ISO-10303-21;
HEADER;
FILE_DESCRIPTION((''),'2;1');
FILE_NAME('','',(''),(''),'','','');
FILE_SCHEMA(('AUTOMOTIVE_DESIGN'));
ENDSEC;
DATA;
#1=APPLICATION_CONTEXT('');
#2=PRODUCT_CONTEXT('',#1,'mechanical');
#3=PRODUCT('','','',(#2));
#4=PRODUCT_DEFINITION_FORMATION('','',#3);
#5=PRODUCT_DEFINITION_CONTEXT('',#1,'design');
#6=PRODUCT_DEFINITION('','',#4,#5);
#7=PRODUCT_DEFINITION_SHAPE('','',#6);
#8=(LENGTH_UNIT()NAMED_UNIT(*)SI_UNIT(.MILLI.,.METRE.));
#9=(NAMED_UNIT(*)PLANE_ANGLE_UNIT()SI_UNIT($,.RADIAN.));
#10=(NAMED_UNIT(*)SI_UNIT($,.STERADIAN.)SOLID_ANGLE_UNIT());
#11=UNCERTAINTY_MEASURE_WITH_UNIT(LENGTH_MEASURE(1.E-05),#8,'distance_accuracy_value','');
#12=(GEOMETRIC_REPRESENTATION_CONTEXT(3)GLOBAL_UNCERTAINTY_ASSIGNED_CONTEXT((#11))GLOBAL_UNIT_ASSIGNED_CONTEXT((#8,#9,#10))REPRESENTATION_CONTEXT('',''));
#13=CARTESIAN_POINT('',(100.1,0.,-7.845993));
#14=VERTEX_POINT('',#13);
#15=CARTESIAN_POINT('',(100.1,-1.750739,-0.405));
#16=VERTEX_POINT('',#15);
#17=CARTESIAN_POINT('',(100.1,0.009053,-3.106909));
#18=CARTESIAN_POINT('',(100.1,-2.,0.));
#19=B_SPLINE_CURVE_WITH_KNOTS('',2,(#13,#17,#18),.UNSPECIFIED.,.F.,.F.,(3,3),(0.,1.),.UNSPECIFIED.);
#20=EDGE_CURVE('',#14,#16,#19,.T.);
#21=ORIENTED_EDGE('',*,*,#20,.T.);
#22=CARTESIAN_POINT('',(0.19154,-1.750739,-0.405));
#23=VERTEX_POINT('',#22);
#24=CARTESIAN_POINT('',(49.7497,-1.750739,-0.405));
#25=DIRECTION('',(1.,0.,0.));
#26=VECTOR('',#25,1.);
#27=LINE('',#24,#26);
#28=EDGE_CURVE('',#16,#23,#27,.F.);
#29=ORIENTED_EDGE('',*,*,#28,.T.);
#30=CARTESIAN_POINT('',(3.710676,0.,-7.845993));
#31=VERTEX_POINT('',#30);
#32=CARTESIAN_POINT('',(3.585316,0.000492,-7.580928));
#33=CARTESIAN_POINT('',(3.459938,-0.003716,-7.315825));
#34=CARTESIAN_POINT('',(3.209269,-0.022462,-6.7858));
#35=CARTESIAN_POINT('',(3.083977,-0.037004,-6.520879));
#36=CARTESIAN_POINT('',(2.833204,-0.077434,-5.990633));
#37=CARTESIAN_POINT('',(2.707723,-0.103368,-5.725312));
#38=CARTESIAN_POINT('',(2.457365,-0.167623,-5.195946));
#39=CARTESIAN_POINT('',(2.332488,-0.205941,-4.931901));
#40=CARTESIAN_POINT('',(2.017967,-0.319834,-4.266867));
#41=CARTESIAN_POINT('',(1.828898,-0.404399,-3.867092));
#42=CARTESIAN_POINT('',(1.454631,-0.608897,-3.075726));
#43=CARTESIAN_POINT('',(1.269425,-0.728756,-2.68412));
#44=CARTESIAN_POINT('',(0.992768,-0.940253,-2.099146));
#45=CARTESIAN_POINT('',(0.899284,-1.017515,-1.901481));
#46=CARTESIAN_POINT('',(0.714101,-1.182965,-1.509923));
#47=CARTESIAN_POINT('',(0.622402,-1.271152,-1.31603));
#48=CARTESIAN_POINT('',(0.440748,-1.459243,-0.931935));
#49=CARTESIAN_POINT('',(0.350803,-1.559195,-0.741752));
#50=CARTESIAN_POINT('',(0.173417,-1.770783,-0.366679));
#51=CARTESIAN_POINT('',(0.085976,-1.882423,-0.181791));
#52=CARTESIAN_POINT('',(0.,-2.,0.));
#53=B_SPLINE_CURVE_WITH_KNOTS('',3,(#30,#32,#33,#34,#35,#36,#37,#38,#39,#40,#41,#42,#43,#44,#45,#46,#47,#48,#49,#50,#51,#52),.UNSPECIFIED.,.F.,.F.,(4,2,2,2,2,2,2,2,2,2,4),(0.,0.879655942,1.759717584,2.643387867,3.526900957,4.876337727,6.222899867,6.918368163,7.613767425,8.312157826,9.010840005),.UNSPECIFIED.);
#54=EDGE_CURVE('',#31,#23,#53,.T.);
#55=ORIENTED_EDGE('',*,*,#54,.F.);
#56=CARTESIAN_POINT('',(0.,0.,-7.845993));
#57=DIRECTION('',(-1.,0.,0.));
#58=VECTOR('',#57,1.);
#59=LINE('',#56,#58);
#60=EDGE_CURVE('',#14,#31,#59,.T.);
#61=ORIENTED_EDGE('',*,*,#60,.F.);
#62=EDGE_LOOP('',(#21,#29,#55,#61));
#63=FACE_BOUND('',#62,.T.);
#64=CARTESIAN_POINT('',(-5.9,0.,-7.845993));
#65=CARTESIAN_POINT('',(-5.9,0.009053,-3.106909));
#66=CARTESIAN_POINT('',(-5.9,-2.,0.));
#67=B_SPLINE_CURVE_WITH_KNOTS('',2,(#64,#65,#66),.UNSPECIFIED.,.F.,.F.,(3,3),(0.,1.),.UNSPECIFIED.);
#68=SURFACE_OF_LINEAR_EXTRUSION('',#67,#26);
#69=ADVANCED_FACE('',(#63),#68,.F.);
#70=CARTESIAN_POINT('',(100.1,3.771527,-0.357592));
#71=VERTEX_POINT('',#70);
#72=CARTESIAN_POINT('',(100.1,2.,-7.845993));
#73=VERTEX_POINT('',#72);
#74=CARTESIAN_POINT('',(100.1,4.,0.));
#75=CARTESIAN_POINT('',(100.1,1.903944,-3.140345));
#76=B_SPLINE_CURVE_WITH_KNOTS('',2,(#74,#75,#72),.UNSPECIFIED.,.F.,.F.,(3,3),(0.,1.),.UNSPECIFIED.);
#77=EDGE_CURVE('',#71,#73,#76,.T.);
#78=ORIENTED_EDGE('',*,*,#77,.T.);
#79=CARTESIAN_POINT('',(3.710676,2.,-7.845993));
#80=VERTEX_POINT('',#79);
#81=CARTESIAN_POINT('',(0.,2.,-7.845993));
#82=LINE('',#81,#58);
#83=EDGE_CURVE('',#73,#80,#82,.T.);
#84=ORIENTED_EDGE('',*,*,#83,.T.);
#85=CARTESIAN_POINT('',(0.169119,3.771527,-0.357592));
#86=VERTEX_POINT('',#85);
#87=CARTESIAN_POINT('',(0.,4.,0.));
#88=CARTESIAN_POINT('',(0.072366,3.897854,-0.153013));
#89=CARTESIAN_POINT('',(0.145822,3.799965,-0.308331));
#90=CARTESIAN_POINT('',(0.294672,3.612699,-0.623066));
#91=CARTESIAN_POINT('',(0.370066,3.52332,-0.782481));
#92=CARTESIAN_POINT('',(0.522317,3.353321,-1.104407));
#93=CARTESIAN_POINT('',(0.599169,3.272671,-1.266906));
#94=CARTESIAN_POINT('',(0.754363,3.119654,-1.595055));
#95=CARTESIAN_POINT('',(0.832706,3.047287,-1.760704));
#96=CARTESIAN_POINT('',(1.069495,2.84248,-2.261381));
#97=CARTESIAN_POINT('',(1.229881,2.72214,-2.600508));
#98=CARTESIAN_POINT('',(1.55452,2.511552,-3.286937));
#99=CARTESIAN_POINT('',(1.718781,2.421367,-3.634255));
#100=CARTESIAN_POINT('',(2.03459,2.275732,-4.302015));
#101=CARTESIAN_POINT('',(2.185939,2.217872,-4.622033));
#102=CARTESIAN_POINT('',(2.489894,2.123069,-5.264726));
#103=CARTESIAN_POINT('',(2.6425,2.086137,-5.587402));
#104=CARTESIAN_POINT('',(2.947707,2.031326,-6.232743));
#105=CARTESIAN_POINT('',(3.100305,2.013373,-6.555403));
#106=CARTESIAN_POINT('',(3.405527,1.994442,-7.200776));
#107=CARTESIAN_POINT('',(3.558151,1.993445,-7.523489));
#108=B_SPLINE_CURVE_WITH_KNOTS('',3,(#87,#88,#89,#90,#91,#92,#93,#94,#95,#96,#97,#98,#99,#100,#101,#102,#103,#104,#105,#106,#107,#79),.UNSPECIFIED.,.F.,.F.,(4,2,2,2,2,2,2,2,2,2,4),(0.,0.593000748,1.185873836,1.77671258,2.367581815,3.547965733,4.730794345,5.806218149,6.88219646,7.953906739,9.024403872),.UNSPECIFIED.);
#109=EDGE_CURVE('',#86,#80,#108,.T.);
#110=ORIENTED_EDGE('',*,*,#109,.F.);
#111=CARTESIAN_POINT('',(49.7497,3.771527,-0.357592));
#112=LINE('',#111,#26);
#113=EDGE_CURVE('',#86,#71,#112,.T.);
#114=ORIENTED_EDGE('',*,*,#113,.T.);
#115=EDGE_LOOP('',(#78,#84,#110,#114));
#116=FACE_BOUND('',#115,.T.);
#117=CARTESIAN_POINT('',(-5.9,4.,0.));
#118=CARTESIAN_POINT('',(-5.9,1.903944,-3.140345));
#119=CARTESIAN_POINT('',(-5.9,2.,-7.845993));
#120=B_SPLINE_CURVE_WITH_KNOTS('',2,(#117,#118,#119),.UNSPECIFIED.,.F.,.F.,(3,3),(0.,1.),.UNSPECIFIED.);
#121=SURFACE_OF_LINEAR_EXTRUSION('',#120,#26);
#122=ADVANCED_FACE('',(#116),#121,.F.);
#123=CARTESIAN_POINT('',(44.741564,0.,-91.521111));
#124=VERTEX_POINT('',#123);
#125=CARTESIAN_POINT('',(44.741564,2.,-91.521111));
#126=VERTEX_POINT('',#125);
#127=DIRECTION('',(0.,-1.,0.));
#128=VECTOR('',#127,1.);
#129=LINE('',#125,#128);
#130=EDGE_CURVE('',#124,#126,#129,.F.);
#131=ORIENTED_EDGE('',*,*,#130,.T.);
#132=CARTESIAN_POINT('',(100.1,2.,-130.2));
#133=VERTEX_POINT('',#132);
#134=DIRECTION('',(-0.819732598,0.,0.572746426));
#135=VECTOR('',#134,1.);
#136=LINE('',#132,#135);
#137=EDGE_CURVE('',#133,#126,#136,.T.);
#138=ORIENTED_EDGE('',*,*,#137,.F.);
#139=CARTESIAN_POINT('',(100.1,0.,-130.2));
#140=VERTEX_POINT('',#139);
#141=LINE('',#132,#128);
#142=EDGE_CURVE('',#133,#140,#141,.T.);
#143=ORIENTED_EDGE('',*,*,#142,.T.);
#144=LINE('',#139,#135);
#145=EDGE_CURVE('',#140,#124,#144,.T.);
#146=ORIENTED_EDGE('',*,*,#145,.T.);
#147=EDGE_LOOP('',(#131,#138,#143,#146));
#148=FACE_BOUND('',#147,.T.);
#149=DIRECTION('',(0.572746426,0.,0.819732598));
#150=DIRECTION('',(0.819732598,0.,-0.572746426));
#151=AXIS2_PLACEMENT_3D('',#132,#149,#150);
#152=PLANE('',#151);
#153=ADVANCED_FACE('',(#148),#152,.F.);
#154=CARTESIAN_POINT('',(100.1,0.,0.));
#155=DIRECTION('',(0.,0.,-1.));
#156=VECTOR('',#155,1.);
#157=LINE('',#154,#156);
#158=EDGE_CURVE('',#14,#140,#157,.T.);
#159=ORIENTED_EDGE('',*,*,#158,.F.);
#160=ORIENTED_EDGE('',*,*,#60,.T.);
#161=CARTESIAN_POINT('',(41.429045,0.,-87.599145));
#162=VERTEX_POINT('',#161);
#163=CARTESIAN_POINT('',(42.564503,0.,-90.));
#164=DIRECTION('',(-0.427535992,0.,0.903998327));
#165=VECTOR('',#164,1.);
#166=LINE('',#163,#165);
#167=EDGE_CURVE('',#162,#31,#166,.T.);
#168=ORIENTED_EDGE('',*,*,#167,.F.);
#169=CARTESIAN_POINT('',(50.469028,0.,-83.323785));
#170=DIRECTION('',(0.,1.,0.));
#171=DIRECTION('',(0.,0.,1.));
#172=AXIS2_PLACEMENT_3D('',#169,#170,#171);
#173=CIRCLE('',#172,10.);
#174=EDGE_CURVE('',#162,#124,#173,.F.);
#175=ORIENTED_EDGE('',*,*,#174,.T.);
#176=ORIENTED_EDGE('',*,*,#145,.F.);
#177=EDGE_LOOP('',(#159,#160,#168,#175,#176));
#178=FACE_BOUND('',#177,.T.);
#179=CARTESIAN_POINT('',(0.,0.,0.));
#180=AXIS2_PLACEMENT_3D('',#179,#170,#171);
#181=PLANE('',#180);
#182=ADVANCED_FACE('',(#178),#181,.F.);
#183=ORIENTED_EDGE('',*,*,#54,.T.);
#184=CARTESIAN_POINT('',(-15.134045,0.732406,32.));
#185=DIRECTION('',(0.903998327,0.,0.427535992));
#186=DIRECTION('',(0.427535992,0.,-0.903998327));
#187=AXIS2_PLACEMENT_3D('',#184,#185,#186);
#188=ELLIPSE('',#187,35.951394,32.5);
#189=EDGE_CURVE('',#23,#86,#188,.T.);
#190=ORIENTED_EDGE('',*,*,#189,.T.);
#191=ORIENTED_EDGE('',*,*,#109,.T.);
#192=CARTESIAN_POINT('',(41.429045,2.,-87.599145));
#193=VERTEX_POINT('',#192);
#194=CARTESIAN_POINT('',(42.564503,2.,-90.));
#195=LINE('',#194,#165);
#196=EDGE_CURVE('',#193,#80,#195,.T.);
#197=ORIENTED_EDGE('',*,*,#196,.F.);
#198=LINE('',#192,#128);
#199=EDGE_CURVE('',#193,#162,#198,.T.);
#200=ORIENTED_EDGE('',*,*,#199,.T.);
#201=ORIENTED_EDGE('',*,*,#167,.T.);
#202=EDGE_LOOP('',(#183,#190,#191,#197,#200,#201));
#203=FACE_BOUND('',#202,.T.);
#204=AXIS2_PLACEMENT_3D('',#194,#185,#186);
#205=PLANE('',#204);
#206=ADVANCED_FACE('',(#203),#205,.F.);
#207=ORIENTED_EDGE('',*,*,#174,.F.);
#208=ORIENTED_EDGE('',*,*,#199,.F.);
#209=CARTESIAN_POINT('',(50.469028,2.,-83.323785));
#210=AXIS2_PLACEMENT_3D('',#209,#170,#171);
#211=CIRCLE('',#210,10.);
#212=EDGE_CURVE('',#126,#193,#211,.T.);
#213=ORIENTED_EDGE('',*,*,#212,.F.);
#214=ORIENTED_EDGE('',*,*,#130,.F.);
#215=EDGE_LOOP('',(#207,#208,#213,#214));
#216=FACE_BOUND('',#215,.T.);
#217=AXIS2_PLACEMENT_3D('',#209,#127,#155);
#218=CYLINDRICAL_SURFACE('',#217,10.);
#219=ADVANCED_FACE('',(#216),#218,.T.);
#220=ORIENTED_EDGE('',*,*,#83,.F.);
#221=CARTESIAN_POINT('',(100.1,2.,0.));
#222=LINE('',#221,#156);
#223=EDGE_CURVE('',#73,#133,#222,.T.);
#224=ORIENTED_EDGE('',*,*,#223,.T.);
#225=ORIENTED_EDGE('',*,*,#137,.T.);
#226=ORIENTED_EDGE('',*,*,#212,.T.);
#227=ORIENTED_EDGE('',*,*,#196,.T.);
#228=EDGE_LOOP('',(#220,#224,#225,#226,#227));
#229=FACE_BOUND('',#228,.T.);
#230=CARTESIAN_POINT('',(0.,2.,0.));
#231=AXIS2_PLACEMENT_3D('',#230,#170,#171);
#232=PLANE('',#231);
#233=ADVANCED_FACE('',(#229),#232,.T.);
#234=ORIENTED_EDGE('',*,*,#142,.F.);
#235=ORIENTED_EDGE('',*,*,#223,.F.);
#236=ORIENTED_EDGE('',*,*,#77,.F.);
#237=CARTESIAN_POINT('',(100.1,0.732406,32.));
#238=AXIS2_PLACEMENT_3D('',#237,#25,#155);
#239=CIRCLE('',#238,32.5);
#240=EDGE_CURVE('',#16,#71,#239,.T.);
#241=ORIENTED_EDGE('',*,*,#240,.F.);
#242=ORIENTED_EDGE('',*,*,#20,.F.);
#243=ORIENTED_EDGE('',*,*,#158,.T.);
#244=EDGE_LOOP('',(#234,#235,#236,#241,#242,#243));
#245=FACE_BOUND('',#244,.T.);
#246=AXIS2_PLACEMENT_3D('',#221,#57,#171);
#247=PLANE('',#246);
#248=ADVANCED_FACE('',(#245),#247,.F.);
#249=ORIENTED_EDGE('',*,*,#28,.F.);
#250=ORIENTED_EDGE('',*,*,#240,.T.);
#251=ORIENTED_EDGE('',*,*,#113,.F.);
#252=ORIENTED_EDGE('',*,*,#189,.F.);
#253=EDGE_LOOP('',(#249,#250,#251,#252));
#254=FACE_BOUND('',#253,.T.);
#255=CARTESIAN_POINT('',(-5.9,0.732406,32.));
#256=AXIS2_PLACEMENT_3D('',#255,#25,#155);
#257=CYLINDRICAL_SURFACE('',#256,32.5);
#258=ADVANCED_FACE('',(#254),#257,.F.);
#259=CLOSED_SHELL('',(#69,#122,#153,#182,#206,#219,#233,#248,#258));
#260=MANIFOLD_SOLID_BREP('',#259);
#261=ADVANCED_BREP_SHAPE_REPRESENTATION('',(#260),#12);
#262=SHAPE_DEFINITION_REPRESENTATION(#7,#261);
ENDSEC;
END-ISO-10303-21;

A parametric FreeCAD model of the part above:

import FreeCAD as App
import Part
import Sketcher
Q = App.Units.Quantity


def edges_at(feature, points):
    """Names of the edges that pass closest to the given points."""
    edges = feature.Shape.Edges
    near = lambda p: min(range(len(edges)), key=lambda i: edges[i].distToShape(Part.Vertex(*p))[0])
    return sorted({f"Edge{near(p) + 1}" for p in points})

doc = App.newDocument("Part")
body = doc.addObject("PartDesign::Body", "Body")

sketch1 = body.newObject("Sketcher::SketchObject", "Sketch")
sketch1.AttachmentSupport = (doc.getObject("XZ_Plane"), [""])
sketch1.MapMode = "FlatFace"
sketch1.addGeometry(Part.LineSegment(App.Vector(0, 0, 0), App.Vector(100, 0, 0)), False)
sketch1.addGeometry(Part.LineSegment(App.Vector(100, 0, 0), App.Vector(100, -130, 0)), False)
sketch1.addGeometry(Part.LineSegment(App.Vector(100, -130, 0), App.Vector(43, -90, 0)), False)
sketch1.addGeometry(Part.LineSegment(App.Vector(43, -90, 0), App.Vector(0, 0, 0)), False)
sketch1.addConstraint(Sketcher.Constraint("Coincident", 0, 2, 1, 1))
sketch1.addConstraint(Sketcher.Constraint("Coincident", 1, 2, 2, 1))
sketch1.addConstraint(Sketcher.Constraint("Coincident", 2, 2, 3, 1))
sketch1.addConstraint(Sketcher.Constraint("Coincident", 3, 2, 0, 1))
sketch1.addConstraint(Sketcher.Constraint("Horizontal", 0))
sketch1.addConstraint(Sketcher.Constraint("Vertical", 1))
sketch1.addConstraint(Sketcher.Constraint("Coincident", 3, 2, -1, 1))
sketch1.addConstraint(Sketcher.Constraint("DistanceX", 0, 1, 0, 2, Q("100.1 mm")))
sketch1.addConstraint(Sketcher.Constraint("DistanceY", 1, 2, 1, 1, Q("130.2 mm")))
sketch1.addConstraint(Sketcher.Constraint("DistanceY", 2, 2, -1, 1, Q("90 mm")))
sketch1.addConstraint(Sketcher.Constraint("Distance", 2, Q("70.188129 mm")))
pad1 = body.newObject("PartDesign::Pad", "Pad")
pad1.Profile = sketch1
pad1.Length = 2
pad1.Reversed = True
doc.recompute()

fillet = body.newObject("PartDesign::Fillet", "Fillet")
fillet.Base = (pad1, edges_at(pad1, [(42.565, 1, -90)]))
fillet.Radius = 10

sketch2 = body.newObject("Sketcher::SketchObject", "Sketch001")
sketch2.AttachmentSupport = (doc.getObject("XZ_Plane"), [""])
sketch2.MapMode = "FlatFace"
sketch2.addGeometry(Part.LineSegment(App.Vector(100, -8, 0), App.Vector(100, 0, 0)), False)
sketch2.addGeometry(Part.LineSegment(App.Vector(100, 0, 0), App.Vector(0, 0, 0)), False)
sketch2.addGeometry(Part.LineSegment(App.Vector(0, 0, 0), App.Vector(4, -8, 0)), False)
sketch2.addGeometry(Part.LineSegment(App.Vector(4, -8, 0), App.Vector(100, -8, 0)), False)
sketch2.addConstraint(Sketcher.Constraint("Coincident", 0, 2, 1, 1))
sketch2.addConstraint(Sketcher.Constraint("Coincident", 1, 2, 2, 1))
sketch2.addConstraint(Sketcher.Constraint("Coincident", 2, 2, 3, 1))
sketch2.addConstraint(Sketcher.Constraint("Coincident", 3, 2, 0, 1))
sketch2.addConstraint(Sketcher.Constraint("Vertical", 0))
sketch2.addConstraint(Sketcher.Constraint("Horizontal", 1))
sketch2.addConstraint(Sketcher.Constraint("Horizontal", 3))
sketch2.addConstraint(Sketcher.Constraint("Coincident", 1, 2, -1, 1))
sketch2.addConstraint(Sketcher.Constraint("DistanceX", 1, 2, 1, 1, Q("100.1 mm")))
sketch2.addConstraint(Sketcher.Constraint("DistanceX", 3, 1, 3, 2, Q("96.389324 mm")))
sketch2.addConstraint(Sketcher.Constraint("DistanceY", 0, 1, 0, 2, Q("7.845993 mm")))
pad2 = body.newObject("PartDesign::Pad", "Pad001")
pad2.Profile = sketch2
pad2.Type = "TwoLengths"
pad2.Length = 2
pad2.Length2 = 4

sketch3 = body.newObject("Sketcher::SketchObject", "Sketch002")
sketch3.AttachmentSupport = (doc.getObject("YZ_Plane"), [""])
sketch3.MapMode = "FlatFace"
sketch3.AttachmentOffset = App.Placement(App.Vector(0, 0, 100.1), App.Rotation())
sketch3.addGeometry(Part.LineSegment(App.Vector(4, -7.845993, 0), App.Vector(4, 0, 0)), False)
sketch3.addGeometry(Part.BSplineCurve([App.Vector(2, -7.845993, 0), App.Vector(1.903944, -3.140345, 0), App.Vector(4, 0, 0)], [3, 3], [0, 1], False, 2, [1, 1, 1], False), False)
sketch3.addGeometry(Part.LineSegment(App.Vector(2, -7.845993, 0), App.Vector(4, -7.845993, 0)), False)
sketch3.addGeometry(Part.LineSegment(App.Vector(-2, -7.845993, 0), App.Vector(0, -7.845993, 0)), False)
sketch3.addGeometry(Part.BSplineCurve([App.Vector(0, -7.845993, 0), App.Vector(0.009053, -3.106909, 0), App.Vector(-2, 0, 0)], [3, 3], [0, 1], False, 2, [1, 1, 1], False), False)
sketch3.addGeometry(Part.LineSegment(App.Vector(-2, 0, 0), App.Vector(-2, -7.845993, 0)), False)
sketch3.addConstraint(Sketcher.Constraint("Block", 1))
sketch3.addConstraint(Sketcher.Constraint("Block", 4))
sketch3.addConstraint(Sketcher.Constraint("Coincident", 0, 2, 1, 2))
sketch3.addConstraint(Sketcher.Constraint("Coincident", 1, 1, 2, 1))
sketch3.addConstraint(Sketcher.Constraint("Coincident", 2, 2, 0, 1))
sketch3.addConstraint(Sketcher.Constraint("Coincident", 3, 2, 4, 1))
sketch3.addConstraint(Sketcher.Constraint("Coincident", 4, 2, 5, 1))
sketch3.addConstraint(Sketcher.Constraint("Coincident", 5, 2, 3, 1))
sketch3.addConstraint(Sketcher.Constraint("Vertical", 0))
sketch3.addConstraint(Sketcher.Constraint("Horizontal", 2))
sketch3.addConstraint(Sketcher.Constraint("Horizontal", 3))
sketch3.addConstraint(Sketcher.Constraint("Vertical", 5))
pocket1 = body.newObject("PartDesign::Pocket", "Pocket")
pocket1.Profile = sketch3
pocket1.Length = 106

sketch4 = body.newObject("Sketcher::SketchObject", "Sketch003")
sketch4.AttachmentSupport = (doc.getObject("YZ_Plane"), [""])
sketch4.MapMode = "FlatFace"
sketch4.AttachmentOffset = App.Placement(App.Vector(0, 0, 100.1), App.Rotation())
sketch4.addGeometry(Part.Circle(App.Vector(1, 32, 0), App.Vector(0, 0, 1), 32), False)
sketch4.addConstraint(Sketcher.Constraint("Diameter", 0, Q("65 mm")))
sketch4.addConstraint(Sketcher.Constraint("DistanceY", -1, 1, 0, 3, Q("32 mm")))
sketch4.addConstraint(Sketcher.Constraint("DistanceX", -1, 1, 0, 3, Q("0.732406 mm")))
pocket2 = body.newObject("PartDesign::Pocket", "Pocket001")
pocket2.Profile = sketch4
pocket2.Length = 106

doc.recompute()
